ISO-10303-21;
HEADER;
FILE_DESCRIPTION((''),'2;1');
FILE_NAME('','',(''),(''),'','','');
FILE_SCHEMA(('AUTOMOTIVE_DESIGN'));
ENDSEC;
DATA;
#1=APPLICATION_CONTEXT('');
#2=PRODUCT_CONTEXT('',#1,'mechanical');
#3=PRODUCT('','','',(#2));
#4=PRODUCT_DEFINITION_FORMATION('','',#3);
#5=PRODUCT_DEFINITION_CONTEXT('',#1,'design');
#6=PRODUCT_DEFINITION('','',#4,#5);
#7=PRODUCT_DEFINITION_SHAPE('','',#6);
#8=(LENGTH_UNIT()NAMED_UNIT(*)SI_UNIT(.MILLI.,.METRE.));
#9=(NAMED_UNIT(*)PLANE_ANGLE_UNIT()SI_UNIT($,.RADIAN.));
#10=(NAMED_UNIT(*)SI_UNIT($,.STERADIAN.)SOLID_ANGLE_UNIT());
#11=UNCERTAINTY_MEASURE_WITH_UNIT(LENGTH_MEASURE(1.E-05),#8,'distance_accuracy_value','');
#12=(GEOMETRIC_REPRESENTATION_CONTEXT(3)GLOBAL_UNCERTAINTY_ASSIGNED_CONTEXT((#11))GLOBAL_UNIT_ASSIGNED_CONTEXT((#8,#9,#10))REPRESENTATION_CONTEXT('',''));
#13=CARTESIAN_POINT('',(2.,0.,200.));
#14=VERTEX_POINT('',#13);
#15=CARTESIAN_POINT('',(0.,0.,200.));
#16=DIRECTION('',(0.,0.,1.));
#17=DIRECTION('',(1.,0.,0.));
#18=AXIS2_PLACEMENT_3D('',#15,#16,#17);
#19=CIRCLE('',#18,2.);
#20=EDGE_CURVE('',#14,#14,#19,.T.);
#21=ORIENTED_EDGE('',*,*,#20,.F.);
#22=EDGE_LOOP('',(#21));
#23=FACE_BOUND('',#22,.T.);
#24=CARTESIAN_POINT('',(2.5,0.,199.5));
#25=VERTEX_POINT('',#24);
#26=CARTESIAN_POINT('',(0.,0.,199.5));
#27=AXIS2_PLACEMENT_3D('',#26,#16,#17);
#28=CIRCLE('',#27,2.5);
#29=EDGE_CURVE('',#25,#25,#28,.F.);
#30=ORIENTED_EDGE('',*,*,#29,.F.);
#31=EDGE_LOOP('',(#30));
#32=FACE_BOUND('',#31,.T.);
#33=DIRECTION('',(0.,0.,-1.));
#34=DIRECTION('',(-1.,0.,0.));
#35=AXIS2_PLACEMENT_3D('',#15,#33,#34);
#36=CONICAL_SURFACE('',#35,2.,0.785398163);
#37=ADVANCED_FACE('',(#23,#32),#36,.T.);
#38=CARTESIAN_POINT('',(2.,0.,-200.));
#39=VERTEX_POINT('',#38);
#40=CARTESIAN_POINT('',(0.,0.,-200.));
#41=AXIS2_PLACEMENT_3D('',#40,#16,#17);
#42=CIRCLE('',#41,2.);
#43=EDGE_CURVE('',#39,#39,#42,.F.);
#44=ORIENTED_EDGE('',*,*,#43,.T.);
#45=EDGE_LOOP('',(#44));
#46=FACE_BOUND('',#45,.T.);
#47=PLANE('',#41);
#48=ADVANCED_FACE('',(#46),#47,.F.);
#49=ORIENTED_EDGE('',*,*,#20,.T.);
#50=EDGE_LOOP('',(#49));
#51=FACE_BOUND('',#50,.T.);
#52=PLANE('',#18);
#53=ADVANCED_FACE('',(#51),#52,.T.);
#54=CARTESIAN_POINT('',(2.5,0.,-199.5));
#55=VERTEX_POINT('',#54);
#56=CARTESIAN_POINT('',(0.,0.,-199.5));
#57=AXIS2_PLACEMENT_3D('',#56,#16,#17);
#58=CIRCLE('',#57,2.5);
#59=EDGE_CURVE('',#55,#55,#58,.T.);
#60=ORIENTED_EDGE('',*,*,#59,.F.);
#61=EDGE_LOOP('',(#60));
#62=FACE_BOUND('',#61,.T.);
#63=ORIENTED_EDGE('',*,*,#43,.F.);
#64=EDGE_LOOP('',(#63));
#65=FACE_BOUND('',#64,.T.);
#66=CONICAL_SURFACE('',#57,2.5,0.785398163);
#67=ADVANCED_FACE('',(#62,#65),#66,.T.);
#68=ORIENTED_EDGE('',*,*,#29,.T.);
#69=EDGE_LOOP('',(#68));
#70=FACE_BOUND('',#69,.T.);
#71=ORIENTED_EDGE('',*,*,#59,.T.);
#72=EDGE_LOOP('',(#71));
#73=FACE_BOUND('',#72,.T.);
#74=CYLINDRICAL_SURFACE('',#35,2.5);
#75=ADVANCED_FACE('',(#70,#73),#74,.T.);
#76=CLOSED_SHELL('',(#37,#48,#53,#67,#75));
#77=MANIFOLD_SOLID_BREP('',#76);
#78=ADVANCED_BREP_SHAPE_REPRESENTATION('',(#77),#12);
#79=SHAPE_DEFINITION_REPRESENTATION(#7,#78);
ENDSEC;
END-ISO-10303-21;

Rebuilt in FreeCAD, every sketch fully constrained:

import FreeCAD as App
import Part
import Sketcher


def edges_at(feature, points):
    """Names of the edges that pass closest to the given points."""
    edges = feature.Shape.Edges
    near = lambda p: min(range(len(edges)), key=lambda i: edges[i].distToShape(Part.Vertex(*p))[0])
    return sorted({f"Edge{near(p) + 1}" for p in points})

doc = App.newDocument("Part")
body = doc.addObject("PartDesign::Body", "Body")

# Sketch on XY plane
sketch1 = body.newObject("Sketcher::SketchObject", "Sketch")
sketch1.AttachmentSupport = (doc.getObject("XY_Plane"), [""])
sketch1.MapMode = "FlatFace"
sketch1.addGeometry(Part.Circle(App.Vector(0, 0, 0), App.Vector(0, 0, 1), 2.5), False)
sketch1.addConstraint([
    Sketcher.Constraint("Coincident", 0, 3, -1, 1),
    Sketcher.Constraint("Diameter", 0, 5.0),
])
pad1 = body.newObject("PartDesign::Pad", "Pad")
pad1.Profile = sketch1
pad1.Length = 400
pad1.Midplane = True
doc.recompute()

chamfer = body.newObject("PartDesign::Chamfer", "Chamfer")
chamfer.Base = (pad1, edges_at(pad1, [(-2.5, 0, -200), (-2.5, 0, 200)]))
chamfer.Size = 0.5

doc.recompute()
